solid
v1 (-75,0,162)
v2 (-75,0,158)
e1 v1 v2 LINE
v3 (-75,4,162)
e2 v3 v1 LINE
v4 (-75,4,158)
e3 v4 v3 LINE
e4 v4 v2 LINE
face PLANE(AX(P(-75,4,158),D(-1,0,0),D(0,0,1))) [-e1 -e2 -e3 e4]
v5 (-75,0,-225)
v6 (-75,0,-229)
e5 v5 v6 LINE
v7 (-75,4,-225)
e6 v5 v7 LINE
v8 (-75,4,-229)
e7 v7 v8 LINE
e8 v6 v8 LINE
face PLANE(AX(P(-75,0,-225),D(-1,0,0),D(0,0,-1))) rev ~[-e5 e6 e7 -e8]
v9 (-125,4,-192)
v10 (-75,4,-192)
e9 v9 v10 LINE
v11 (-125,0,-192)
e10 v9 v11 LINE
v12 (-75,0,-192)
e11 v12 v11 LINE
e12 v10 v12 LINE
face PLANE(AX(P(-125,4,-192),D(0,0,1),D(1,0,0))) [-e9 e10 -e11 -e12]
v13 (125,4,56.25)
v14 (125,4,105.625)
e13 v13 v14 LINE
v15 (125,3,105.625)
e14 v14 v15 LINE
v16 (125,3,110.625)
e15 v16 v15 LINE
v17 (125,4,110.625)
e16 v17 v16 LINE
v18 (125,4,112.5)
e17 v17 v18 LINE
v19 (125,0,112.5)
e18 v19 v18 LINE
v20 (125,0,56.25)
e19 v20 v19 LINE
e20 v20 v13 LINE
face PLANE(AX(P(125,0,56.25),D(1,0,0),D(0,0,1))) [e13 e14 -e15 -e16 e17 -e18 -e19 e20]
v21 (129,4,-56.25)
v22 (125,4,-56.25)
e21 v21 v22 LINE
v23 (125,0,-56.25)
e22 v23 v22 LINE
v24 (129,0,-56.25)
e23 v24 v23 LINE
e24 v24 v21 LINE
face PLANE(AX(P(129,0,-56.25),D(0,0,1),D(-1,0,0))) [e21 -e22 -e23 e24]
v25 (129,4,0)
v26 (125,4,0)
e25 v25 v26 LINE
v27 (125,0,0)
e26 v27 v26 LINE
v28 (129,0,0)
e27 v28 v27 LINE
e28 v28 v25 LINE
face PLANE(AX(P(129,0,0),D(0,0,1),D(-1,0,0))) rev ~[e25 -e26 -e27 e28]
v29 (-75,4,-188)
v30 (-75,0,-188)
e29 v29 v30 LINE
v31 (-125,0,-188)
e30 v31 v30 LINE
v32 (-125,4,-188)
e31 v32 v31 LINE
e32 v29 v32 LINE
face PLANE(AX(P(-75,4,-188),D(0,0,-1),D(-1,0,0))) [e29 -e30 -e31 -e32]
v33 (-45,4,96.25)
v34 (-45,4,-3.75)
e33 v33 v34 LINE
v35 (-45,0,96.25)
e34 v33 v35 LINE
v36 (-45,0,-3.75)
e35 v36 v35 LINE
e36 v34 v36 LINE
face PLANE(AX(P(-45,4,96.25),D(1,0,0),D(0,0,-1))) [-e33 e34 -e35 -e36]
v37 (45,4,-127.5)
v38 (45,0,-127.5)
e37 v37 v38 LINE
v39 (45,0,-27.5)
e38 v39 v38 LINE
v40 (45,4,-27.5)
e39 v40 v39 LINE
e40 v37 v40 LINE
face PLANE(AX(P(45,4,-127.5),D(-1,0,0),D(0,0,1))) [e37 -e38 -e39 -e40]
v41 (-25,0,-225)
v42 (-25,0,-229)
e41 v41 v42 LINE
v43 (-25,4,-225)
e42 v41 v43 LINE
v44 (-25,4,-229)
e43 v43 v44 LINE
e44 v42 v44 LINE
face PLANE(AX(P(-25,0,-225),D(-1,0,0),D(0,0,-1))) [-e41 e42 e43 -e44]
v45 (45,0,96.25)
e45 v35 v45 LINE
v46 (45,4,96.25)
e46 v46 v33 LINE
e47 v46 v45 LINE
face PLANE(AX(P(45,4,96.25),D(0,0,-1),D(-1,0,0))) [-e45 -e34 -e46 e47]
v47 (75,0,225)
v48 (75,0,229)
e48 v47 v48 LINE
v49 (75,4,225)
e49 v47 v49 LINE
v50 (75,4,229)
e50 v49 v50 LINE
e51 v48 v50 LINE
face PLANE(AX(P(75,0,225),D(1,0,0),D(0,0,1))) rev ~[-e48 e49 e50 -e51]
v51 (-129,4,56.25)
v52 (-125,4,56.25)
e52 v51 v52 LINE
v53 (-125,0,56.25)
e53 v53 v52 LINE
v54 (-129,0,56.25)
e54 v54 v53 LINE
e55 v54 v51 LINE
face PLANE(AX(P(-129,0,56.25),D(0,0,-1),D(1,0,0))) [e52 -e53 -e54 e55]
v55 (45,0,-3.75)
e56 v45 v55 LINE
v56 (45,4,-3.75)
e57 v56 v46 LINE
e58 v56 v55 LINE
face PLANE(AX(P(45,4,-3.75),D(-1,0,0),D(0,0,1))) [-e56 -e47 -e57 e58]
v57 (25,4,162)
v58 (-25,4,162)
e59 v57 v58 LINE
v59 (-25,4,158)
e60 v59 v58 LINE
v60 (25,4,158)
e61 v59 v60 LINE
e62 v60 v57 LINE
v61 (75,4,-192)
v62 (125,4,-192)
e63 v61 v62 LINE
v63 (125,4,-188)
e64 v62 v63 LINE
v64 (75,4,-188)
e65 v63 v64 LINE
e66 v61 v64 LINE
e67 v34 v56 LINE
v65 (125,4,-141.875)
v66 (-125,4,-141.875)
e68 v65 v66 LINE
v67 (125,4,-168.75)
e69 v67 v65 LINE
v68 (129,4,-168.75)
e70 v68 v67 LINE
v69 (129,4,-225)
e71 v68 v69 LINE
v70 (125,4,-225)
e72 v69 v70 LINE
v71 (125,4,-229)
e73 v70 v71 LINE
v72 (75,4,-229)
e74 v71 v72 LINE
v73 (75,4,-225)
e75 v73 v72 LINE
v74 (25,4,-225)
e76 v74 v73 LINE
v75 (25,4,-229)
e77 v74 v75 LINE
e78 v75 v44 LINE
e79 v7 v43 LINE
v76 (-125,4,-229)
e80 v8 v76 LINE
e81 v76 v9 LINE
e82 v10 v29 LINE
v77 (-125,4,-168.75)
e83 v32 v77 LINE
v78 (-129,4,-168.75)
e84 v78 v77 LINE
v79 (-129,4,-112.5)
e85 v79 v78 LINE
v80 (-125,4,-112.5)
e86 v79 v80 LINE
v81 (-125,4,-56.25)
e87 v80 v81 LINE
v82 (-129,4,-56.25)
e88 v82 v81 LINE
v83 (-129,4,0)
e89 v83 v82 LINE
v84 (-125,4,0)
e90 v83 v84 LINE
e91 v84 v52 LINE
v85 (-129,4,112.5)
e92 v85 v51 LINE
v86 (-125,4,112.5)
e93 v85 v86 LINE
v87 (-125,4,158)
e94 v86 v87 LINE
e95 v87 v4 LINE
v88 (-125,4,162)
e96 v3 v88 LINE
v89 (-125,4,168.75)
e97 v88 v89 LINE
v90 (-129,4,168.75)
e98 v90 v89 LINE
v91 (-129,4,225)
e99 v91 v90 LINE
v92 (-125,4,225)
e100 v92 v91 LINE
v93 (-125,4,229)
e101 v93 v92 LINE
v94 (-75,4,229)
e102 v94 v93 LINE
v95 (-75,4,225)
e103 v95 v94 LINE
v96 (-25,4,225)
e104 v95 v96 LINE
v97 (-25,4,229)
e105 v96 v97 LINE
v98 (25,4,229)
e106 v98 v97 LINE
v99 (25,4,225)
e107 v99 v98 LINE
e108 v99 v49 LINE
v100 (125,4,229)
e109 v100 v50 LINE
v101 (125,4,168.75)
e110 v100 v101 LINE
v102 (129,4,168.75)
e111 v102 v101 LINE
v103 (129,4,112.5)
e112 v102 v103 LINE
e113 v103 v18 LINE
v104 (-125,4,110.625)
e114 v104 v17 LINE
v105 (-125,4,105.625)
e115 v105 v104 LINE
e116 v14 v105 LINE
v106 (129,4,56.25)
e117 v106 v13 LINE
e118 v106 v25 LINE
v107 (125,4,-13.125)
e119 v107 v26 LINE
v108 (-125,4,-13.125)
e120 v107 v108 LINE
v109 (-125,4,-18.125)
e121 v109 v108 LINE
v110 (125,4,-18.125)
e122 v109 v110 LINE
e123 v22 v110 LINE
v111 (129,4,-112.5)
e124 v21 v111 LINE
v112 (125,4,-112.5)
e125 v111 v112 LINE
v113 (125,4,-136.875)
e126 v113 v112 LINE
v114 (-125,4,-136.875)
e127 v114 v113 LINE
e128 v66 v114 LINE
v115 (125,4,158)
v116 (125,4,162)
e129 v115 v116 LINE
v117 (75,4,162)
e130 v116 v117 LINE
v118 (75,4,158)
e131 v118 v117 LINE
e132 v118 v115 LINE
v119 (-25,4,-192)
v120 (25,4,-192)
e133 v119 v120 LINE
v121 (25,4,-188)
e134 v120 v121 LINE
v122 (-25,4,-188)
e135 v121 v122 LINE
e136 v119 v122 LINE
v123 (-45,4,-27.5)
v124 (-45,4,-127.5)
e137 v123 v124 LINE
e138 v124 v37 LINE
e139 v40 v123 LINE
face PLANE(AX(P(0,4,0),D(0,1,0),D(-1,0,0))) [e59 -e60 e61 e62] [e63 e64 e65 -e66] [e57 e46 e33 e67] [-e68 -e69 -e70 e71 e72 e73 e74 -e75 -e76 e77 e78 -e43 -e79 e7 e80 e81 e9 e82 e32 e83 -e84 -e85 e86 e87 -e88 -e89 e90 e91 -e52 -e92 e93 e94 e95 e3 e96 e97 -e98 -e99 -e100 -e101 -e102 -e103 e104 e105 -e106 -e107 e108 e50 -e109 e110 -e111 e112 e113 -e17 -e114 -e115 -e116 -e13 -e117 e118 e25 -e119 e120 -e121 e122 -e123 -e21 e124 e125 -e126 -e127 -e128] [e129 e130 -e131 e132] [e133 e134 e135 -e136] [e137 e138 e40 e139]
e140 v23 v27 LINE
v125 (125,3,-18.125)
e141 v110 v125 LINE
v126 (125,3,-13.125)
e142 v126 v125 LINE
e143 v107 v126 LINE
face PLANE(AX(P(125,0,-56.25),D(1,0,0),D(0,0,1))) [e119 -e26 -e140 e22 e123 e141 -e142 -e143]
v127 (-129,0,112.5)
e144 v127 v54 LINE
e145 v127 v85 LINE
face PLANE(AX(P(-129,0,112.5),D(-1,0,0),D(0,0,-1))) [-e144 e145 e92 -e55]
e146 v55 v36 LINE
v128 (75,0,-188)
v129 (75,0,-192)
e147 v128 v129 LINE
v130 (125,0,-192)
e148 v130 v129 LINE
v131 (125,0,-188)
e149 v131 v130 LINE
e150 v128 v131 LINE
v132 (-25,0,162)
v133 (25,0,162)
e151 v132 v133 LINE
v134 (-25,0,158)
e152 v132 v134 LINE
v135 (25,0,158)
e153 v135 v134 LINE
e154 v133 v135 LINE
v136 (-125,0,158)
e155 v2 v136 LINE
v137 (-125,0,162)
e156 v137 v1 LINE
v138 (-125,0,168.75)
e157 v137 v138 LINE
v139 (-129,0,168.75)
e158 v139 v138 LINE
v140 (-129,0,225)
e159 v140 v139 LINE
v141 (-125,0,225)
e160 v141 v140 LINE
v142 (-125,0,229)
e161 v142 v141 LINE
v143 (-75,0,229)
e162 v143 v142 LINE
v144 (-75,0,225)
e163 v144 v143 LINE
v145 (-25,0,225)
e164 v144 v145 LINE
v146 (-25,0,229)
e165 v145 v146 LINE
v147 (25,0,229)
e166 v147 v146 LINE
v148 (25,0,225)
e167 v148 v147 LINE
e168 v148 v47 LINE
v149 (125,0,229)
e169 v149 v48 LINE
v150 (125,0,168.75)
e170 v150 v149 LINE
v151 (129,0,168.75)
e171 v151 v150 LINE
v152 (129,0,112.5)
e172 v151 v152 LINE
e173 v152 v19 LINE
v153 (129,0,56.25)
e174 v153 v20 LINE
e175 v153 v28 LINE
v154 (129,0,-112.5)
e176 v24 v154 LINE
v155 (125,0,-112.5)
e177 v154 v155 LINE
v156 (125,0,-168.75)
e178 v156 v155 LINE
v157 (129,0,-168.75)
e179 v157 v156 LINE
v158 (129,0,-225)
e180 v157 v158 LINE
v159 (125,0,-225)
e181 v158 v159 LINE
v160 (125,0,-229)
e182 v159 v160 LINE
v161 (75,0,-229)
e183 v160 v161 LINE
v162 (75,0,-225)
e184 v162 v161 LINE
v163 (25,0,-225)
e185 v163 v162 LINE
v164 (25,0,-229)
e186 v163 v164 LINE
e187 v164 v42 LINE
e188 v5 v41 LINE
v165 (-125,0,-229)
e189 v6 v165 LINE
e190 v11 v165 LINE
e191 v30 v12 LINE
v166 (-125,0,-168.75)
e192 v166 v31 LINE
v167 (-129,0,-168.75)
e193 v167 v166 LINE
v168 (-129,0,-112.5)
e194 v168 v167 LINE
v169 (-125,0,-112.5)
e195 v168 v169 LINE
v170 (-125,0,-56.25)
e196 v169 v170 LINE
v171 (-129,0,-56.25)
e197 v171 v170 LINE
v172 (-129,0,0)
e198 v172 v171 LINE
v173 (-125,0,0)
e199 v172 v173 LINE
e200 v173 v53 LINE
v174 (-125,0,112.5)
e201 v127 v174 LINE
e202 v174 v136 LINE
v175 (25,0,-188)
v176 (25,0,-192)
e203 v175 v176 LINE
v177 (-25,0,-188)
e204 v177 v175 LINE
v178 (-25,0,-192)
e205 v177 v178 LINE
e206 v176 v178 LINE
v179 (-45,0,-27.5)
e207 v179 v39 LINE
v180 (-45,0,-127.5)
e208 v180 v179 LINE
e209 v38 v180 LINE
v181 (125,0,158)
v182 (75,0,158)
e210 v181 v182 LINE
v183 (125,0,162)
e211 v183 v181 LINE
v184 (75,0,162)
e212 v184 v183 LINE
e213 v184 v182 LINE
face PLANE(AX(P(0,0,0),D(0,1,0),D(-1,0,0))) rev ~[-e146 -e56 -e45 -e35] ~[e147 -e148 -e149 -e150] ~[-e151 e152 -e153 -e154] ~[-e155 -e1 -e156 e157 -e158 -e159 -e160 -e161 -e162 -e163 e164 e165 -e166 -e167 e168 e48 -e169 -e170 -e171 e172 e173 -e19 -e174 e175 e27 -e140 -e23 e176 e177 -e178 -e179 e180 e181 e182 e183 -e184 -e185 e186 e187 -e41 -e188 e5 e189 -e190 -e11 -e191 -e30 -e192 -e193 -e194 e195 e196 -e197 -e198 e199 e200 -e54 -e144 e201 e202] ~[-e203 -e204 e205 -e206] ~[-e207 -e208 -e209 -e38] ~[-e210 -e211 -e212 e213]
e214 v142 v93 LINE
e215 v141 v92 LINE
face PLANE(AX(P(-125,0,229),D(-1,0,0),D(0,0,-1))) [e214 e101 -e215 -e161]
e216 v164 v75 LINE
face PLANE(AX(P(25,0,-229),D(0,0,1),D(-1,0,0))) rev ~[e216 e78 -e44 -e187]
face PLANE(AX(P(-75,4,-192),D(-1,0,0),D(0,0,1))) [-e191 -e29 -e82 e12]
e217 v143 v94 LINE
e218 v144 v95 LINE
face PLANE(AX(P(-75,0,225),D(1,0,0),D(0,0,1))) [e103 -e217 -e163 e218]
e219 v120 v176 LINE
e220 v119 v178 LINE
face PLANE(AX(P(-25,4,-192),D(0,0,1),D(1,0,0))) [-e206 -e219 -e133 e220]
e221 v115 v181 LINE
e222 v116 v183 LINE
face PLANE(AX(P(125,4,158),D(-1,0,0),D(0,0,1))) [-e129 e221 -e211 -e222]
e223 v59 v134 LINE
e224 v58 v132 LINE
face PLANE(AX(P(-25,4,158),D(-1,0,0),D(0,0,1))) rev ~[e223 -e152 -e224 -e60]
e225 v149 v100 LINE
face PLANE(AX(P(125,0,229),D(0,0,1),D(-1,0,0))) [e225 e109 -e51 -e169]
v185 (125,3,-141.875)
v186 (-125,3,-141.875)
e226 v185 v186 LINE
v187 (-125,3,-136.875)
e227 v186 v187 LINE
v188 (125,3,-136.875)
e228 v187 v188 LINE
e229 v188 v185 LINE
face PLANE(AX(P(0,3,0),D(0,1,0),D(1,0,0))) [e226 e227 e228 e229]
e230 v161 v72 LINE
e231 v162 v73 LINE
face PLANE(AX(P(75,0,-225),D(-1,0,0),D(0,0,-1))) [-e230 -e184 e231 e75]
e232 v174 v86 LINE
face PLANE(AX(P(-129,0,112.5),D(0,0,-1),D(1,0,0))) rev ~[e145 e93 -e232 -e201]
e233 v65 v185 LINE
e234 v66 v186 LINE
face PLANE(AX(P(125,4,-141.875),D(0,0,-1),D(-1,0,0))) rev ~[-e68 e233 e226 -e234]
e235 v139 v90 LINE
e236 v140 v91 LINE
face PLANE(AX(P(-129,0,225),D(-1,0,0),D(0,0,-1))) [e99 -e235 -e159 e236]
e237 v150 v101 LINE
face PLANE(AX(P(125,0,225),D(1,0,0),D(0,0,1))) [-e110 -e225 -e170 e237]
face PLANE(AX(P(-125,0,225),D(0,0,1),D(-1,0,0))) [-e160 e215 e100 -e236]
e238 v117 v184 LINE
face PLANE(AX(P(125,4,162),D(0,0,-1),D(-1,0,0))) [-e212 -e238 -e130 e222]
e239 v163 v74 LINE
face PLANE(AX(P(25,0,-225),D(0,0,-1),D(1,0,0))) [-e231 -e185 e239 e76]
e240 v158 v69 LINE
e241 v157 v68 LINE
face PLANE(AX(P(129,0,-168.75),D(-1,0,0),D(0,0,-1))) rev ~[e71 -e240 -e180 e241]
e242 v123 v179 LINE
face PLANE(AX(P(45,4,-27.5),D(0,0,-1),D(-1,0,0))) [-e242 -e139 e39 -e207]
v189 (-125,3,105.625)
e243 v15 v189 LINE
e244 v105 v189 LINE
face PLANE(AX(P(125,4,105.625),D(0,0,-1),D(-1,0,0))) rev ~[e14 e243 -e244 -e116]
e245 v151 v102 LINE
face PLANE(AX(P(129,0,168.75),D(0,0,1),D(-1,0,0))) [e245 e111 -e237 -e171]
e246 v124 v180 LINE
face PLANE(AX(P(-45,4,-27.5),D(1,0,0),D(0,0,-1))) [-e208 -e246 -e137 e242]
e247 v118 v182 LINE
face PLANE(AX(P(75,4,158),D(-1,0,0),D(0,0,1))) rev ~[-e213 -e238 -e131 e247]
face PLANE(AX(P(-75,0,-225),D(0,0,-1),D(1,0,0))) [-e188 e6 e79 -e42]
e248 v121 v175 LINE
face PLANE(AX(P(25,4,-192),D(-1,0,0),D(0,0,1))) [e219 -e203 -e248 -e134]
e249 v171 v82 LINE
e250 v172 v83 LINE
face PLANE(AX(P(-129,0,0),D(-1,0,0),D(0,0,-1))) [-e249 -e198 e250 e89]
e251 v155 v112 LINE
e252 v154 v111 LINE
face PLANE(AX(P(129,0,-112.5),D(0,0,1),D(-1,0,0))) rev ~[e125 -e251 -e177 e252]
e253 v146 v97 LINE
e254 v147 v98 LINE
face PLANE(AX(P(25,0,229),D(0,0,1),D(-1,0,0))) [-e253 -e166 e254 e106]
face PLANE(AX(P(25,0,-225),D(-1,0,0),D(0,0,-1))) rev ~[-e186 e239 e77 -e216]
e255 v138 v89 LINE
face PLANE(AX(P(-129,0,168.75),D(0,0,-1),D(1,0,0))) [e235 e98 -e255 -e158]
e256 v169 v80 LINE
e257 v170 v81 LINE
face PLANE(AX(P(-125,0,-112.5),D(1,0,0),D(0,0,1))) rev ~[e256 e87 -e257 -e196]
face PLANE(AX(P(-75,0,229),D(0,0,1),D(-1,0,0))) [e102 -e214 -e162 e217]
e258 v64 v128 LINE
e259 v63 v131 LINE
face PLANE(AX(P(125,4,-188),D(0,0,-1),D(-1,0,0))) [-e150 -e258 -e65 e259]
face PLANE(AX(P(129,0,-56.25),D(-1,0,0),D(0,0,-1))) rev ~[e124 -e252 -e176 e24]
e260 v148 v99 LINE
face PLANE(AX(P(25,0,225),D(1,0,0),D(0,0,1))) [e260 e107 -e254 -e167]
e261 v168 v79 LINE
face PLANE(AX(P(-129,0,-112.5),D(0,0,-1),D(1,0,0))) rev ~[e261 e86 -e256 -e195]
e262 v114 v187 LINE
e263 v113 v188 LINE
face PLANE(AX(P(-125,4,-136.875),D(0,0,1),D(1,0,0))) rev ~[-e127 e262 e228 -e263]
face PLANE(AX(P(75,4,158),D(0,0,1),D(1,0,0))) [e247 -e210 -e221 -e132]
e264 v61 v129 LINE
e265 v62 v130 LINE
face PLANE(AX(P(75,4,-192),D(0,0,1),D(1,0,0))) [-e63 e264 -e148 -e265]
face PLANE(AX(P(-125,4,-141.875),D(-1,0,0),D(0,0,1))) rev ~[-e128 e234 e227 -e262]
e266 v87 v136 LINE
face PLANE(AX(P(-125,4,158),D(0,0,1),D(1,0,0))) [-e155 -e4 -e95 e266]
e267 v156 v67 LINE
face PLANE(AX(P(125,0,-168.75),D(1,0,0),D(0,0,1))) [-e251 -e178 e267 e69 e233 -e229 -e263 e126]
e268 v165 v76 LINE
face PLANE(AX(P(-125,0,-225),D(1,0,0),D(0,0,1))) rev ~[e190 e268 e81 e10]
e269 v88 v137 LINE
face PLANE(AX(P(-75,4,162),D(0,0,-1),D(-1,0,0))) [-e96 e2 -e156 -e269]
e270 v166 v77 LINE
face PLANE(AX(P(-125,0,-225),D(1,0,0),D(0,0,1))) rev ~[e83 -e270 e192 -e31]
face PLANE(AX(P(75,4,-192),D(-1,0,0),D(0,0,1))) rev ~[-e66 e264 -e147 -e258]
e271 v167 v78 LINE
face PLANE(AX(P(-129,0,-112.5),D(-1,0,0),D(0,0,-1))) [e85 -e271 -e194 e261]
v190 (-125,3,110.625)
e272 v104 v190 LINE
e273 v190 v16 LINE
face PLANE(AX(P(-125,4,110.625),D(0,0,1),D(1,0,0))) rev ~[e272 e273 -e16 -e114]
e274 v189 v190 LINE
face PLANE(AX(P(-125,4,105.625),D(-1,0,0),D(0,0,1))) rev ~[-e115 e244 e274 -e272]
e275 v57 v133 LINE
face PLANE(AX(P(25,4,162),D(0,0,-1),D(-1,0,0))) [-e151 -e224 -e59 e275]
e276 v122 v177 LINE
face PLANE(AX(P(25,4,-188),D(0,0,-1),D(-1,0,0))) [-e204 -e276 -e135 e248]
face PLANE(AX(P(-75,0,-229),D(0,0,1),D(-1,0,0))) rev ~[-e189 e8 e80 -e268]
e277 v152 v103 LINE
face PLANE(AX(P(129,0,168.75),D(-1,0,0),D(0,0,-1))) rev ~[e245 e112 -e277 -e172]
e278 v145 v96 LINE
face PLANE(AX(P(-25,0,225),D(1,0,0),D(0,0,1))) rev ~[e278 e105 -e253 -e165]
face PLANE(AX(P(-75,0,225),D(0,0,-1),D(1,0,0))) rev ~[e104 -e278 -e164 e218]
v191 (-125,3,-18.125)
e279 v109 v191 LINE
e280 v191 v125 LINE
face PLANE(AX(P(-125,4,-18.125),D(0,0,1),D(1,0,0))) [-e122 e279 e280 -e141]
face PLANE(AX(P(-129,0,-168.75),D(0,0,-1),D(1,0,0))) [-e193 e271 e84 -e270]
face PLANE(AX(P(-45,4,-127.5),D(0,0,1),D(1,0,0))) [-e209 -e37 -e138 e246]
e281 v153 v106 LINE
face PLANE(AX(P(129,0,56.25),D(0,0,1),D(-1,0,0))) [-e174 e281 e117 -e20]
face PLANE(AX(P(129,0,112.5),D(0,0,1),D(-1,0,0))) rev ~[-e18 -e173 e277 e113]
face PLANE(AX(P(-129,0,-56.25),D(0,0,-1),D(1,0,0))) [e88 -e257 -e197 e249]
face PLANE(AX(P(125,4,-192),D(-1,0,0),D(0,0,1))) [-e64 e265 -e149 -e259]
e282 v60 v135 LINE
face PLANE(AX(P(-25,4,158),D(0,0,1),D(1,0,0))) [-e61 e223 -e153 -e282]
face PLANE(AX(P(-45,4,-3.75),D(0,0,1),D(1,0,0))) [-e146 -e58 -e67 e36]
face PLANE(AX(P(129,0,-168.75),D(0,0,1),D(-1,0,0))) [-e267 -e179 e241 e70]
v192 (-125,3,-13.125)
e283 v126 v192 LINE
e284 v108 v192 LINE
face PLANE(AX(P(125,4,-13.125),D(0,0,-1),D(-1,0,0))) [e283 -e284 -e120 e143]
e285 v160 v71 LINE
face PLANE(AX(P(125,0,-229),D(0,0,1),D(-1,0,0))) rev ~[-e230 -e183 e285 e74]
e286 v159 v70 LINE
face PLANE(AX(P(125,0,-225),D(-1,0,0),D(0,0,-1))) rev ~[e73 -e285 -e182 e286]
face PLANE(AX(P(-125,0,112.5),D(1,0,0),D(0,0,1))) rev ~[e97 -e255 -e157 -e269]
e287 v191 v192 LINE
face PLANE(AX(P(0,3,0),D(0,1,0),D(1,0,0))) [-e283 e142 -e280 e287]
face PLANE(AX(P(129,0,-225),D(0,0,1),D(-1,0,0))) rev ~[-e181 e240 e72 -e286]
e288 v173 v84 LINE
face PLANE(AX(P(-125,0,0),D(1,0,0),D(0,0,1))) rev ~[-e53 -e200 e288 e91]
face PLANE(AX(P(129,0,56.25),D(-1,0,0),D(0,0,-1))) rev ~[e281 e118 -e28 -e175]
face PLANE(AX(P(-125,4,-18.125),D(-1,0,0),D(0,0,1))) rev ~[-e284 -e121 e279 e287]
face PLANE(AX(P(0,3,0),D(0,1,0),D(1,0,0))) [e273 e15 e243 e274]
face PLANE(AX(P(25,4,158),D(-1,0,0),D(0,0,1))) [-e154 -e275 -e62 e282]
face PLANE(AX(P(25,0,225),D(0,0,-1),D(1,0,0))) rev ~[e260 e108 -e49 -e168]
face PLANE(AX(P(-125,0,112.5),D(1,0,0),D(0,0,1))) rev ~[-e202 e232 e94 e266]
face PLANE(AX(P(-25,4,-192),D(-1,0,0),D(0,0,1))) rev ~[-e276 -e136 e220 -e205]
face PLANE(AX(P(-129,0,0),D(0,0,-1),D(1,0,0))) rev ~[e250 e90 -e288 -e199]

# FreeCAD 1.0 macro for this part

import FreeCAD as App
import Part
import Sketcher
from FreeCAD import Vector


def add_polygon(sketch, points):
    """Adds a closed chain of lines whose ends are joined by coincident constraints."""
    first, n = sketch.GeometryCount, len(points)
    for a, b in zip(points, points[1:] + points[:1]):
        sketch.addGeometry(Part.LineSegment(App.Vector(*a, 0), App.Vector(*b, 0)), False)
    for i in range(n):
        sketch.addConstraint(Sketcher.Constraint("Coincident", first + i, 2, first + (i + 1) % n, 1))

doc = App.newDocument("Part")
body = doc.addObject("PartDesign::Body", "Body")

# Sketch on XZ plane
sketch1 = body.newObject("Sketcher::SketchObject", "Sketch")
sketch1.AttachmentSupport = (doc.getObject("XZ_Plane"), [""])
sketch1.MapMode = "FlatFace"
add_polygon(sketch1, [(-75, 229), (-75, 225), (-25, 225), (-25, 229), (25, 229), (25, 225), (75, 225), (75, 229), (125, 229), (125, 168.8), (129, 168.8), (129, 112.5), (125, 112.5), (125, 56.2), (129, 56.2), (129, 0), (125, 0), (125, -56.2), (129, -56.2), (129, -112.5), (125, -112.5), (125, -168.8), (129, -168.8), (129, -225), (125, -225), (125, -229), (75, -229), (75, -225), (25, -225), (25, -229), (-25, -229), (-25, -225), (-75, -225), (-75, -229), (-125, -229), (-125, -168.8), (-129, -168.8), (-129, -112.5), (-125, -112.5), (-125, -56.2), (-129, -56.2), (-129, 0), (-125, 0), (-125, 56.2), (-129, 56.2), (-129, 112.5), (-125, 112.5), (-125, 168.8), (-129, 168.8), (-129, 225), (-125, 225), (-125, 229)])  # lines 0-51
sketch1.addConstraint(Sketcher.Constraint("Vertical", 0))
sketch1.addConstraint(Sketcher.Constraint("Horizontal", 1))
sketch1.addConstraint(Sketcher.Constraint("Vertical", 2))
sketch1.addConstraint(Sketcher.Constraint("Horizontal", 3))
sketch1.addConstraint(Sketcher.Constraint("Vertical", 4))
sketch1.addConstraint(Sketcher.Constraint("Horizontal", 5))
sketch1.addConstraint(Sketcher.Constraint("Vertical", 6))
sketch1.addConstraint(Sketcher.Constraint("Horizontal", 7))
sketch1.addConstraint(Sketcher.Constraint("Vertical", 8))
sketch1.addConstraint(Sketcher.Constraint("Horizontal", 9))
sketch1.addConstraint(Sketcher.Constraint("Vertical", 10))
sketch1.addConstraint(Sketcher.Constraint("Horizontal", 11))
sketch1.addConstraint(Sketcher.Constraint("Vertical", 12))
sketch1.addConstraint(Sketcher.Constraint("Horizontal", 13))
sketch1.addConstraint(Sketcher.Constraint("Vertical", 14))
sketch1.addConstraint(Sketcher.Constraint("Horizontal", 15))
sketch1.addConstraint(Sketcher.Constraint("Vertical", 16))
sketch1.addConstraint(Sketcher.Constraint("Horizontal", 17))
sketch1.addConstraint(Sketcher.Constraint("Vertical", 18))
sketch1.addConstraint(Sketcher.Constraint("Horizontal", 19))
sketch1.addConstraint(Sketcher.Constraint("Vertical", 20))
sketch1.addConstraint(Sketcher.Constraint("Horizontal", 21))
sketch1.addConstraint(Sketcher.Constraint("Vertical", 22))
sketch1.addConstraint(Sketcher.Constraint("Horizontal", 23))
sketch1.addConstraint(Sketcher.Constraint("Vertical", 24))
sketch1.addConstraint(Sketcher.Constraint("Horizontal", 25))
sketch1.addConstraint(Sketcher.Constraint("Vertical", 26))
sketch1.addConstraint(Sketcher.Constraint("Horizontal", 27))
sketch1.addConstraint(Sketcher.Constraint("Vertical", 28))
sketch1.addConstraint(Sketcher.Constraint("Horizontal", 29))
sketch1.addConstraint(Sketcher.Constraint("Vertical", 30))
sketch1.addConstraint(Sketcher.Constraint("Horizontal", 31))
sketch1.addConstraint(Sketcher.Constraint("Vertical", 32))
sketch1.addConstraint(Sketcher.Constraint("Horizontal", 33))
sketch1.addConstraint(Sketcher.Constraint("Vertical", 34))
sketch1.addConstraint(Sketcher.Constraint("Horizontal", 35))
sketch1.addConstraint(Sketcher.Constraint("Vertical", 36))
sketch1.addConstraint(Sketcher.Constraint("Horizontal", 37))
sketch1.addConstraint(Sketcher.Constraint("Vertical", 38))
sketch1.addConstraint(Sketcher.Constraint("Horizontal", 39))
sketch1.addConstraint(Sketcher.Constraint("Vertical", 40))
sketch1.addConstraint(Sketcher.Constraint("Horizontal", 41))
sketch1.addConstraint(Sketcher.Constraint("Vertical", 42))
sketch1.addConstraint(Sketcher.Constraint("Horizontal", 43))
sketch1.addConstraint(Sketcher.Constraint("Vertical", 44))
sketch1.addConstraint(Sketcher.Constraint("Horizontal", 45))
sketch1.addConstraint(Sketcher.Constraint("Vertical", 46))
sketch1.addConstraint(Sketcher.Constraint("Horizontal", 47))
sketch1.addConstraint(Sketcher.Constraint("Vertical", 48))
sketch1.addConstraint(Sketcher.Constraint("Horizontal", 49))
sketch1.addConstraint(Sketcher.Constraint("Vertical", 50))
sketch1.addConstraint(Sketcher.Constraint("Horizontal", 51))
sketch1.addConstraint(Sketcher.Constraint("Symmetric", 0, 2, 26, 2, -1, 1))
sketch1.addConstraint(Sketcher.Constraint("Symmetric", 2, 2, 28, 2, -1, 1))
sketch1.addConstraint(Sketcher.Constraint("Symmetric", 4, 2, 30, 2, -1, 1))
sketch1.addConstraint(Sketcher.Constraint("Symmetric", 6, 2, 32, 2, -1, 1))
sketch1.addConstraint(Sketcher.Constraint("Symmetric", 8, 2, 34, 2, -1, 1))
sketch1.addConstraint(Sketcher.Constraint("Symmetric", 10, 2, 36, 2, -1, 1))
sketch1.addConstraint(Sketcher.Constraint("Symmetric", 12, 2, 38, 2, -1, 1))
sketch1.addConstraint(Sketcher.Constraint("Symmetric", 14, 2, 40, 2, -1, 1))
sketch1.addConstraint(Sketcher.Constraint("Symmetric", 16, 2, 42, 2, -1, 1))
sketch1.addConstraint(Sketcher.Constraint("Symmetric", 18, 2, 44, 2, -1, 1))
sketch1.addConstraint(Sketcher.Constraint("Symmetric", 20, 2, 46, 2, -1, 1))
sketch1.addConstraint(Sketcher.Constraint("Symmetric", 22, 2, 48, 2, -1, 1))
sketch1.addConstraint(Sketcher.Constraint("Symmetric", 24, 2, 50, 2, -1, 1))
sketch1.addConstraint(Sketcher.Constraint("Symmetric", 1, 2, 4, 2, -2))
sketch1.addConstraint(Sketcher.Constraint("Symmetric", 25, 2, 32, 2, -2))
sketch1.addConstraint(Sketcher.Constraint("Symmetric", 20, 2, 34, 2, -2))
sketch1.addConstraint(Sketcher.Constraint("Symmetric", 18, 2, 36, 2, -2))
sketch1.addConstraint(Sketcher.Constraint("Symmetric", 16, 2, 38, 2, -2))
sketch1.addConstraint(Sketcher.Constraint("PointOnObject", 14, 2, -1))
sketch1.addConstraint(Sketcher.Constraint("Horizontal", 3, 2, 6, 2))
sketch1.addConstraint(Sketcher.Constraint("Horizontal", 23, 2, 26, 2))
sketch1.addConstraint(Sketcher.Constraint("Vertical", 8, 2, 11, 2))
sketch1.addConstraint(Sketcher.Constraint("Vertical", 10, 2, 13, 2))
sketch1.addConstraint(Sketcher.Constraint("Vertical", 18, 2, 21, 2))
sketch1.addConstraint(Sketcher.Constraint("Vertical", 20, 2, 23, 2))
sketch1.addConstraint(Sketcher.Constraint("Equal", 1, 3))
sketch1.addConstraint(Sketcher.Constraint("Equal", 5, 7))
sketch1.addConstraint(Sketcher.Constraint("Equal", 49, 0))
sketch1.addConstraint(Sketcher.Constraint("Equal", 10, 12))
sketch1.addConstraint(Sketcher.Constraint("Equal", 12, 14))
sketch1.addConstraint(Sketcher.Constraint("Equal", 20, 22))
sketch1.addConstraint(Sketcher.Constraint("DistanceX", 1, 1, 1, 2, 50.0))
sketch1.addConstraint(Sketcher.Constraint("DistanceX", 9, 1, 9, 2, 4.0))
sketch1.addConstraint(Sketcher.Constraint("DistanceY", 10, 2, 10, 1, 56.25))
pad1 = body.newObject("PartDesign::Pad", "Pad")
pad1.Profile = sketch1
pad1.Length = 4
pad1.Reversed = True

# Sketch on XZ plane
sketch2 = body.newObject("Sketcher::SketchObject", "Sketch001")
sketch2.AttachmentSupport = (doc.getObject("XZ_Plane"), [""])
sketch2.MapMode = "FlatFace"
sketch2.AttachmentOffset = App.Placement(Vector(0, 0, -4), App.Rotation())
add_polygon(sketch2, [(45, -128), (-45, -128), (-45, -28), (45, -28)])  # lines 0-3
add_polygon(sketch2, [(-45, 96), (45, 96), (45, -4), (-45, -4)])  # lines 4-7
sketch2.addConstraint(Sketcher.Constraint("Horizontal", 0))
sketch2.addConstraint(Sketcher.Constraint("Vertical", 1))
sketch2.addConstraint(Sketcher.Constraint("Horizontal", 2))
sketch2.addConstraint(Sketcher.Constraint("Vertical", 3))
sketch2.addConstraint(Sketcher.Constraint("Horizontal", 4))
sketch2.addConstraint(Sketcher.Constraint("Vertical", 5))
sketch2.addConstraint(Sketcher.Constraint("Horizontal", 6))
sketch2.addConstraint(Sketcher.Constraint("Vertical", 7))
sketch2.addConstraint(Sketcher.Constraint("Vertical", 3, 2, 4, 2))
sketch2.addConstraint(Sketcher.Constraint("Vertical", 1, 2, 6, 2))
sketch2.addConstraint(Sketcher.Constraint("Equal", 3, 5))
sketch2.addConstraint(Sketcher.Constraint("DistanceX", 0, 2, 0, 1, 90.0))
sketch2.addConstraint(Sketcher.Constraint("DistanceY", 1, 1, 1, 2, 100.0))
sketch2.addConstraint(Sketcher.Constraint("DistanceX", 0, 2, -1, 1, 45.0))
sketch2.addConstraint(Sketcher.Constraint("DistanceY", 0, 2, -1, 1, 127.5))
sketch2.addConstraint(Sketcher.Constraint("DistanceY", -1, 1, 4, 2, 96.25))
pocket1 = body.newObject("PartDesign::Pocket", "Pocket")
pocket1.Profile = sketch2
pocket1.Type = "UpToFirst"
pocket1.Reversed = True

# Sketch on XZ plane
sketch3 = body.newObject("Sketcher::SketchObject", "Sketch002")
sketch3.AttachmentSupport = (doc.getObject("XZ_Plane"), [""])
sketch3.MapMode = "FlatFace"
sketch3.AttachmentOffset = App.Placement(Vector(0, 0, -4), App.Rotation())
add_polygon(sketch3, [(125, -18), (-125, -18), (-125, -13), (125, -13)])  # lines 0-3
sketch3.addConstraint(Sketcher.Constraint("Horizontal", 0))
sketch3.addConstraint(Sketcher.Constraint("Vertical", 1))
sketch3.addConstraint(Sketcher.Constraint("Horizontal", 2))
sketch3.addConstraint(Sketcher.Constraint("Vertical", 3))
sketch3.addConstraint(Sketcher.Constraint("DistanceY", 1, 1, 1, 2, 5.0))
sketch3.addConstraint(Sketcher.Constraint("DistanceX", 0, 2, 0, 1, 250.0))
sketch3.addConstraint(Sketcher.Constraint("DistanceX", 0, 2, -1, 1, 125.0))
sketch3.addConstraint(Sketcher.Constraint("DistanceY", 0, 2, -1, 1, 18.125))
pocket2 = body.newObject("PartDesign::Pocket", "Pocket001")
pocket2.Profile = sketch3
pocket2.Length = 1
pocket2.Reversed = True

# Sketch on XZ plane
sketch4 = body.newObject("Sketcher::SketchObject", "Sketch003")
sketch4.AttachmentSupport = (doc.getObject("XZ_Plane"), [""])
sketch4.MapMode = "FlatFace"
sketch4.AttachmentOffset = App.Placement(Vector(0, 0, -4), App.Rotation())
add_polygon(sketch4, [(-125, 106), (-125, 111), (125, 111), (125, 106)])  # lines 0-3
add_polygon(sketch4, [(-125, -137), (125, -137), (125, -142), (-125, -142)])  # lines 4-7
sketch4.addConstraint(Sketcher.Constraint("Vertical", 0))
sketch4.addConstraint(Sketcher.Constraint("Horizontal", 1))
sketch4.addConstraint(Sketcher.Constraint("Vertical", 2))
sketch4.addConstraint(Sketcher.Constraint("Horizontal", 3))
sketch4.addConstraint(Sketcher.Constraint("Horizontal", 4))
sketch4.addConstraint(Sketcher.Constraint("Vertical", 5))
sketch4.addConstraint(Sketcher.Constraint("Horizontal", 6))
sketch4.addConstraint(Sketcher.Constraint("Vertical", 7))
sketch4.addConstraint(Sketcher.Constraint("Vertical", 2, 2, 4, 2))
sketch4.addConstraint(Sketcher.Constraint("Vertical", 3, 2, 6, 2))
sketch4.addConstraint(Sketcher.Constraint("Equal", 2, 5))
sketch4.addConstraint(Sketcher.Constraint("DistanceY", 0, 1, 0, 2, 5.0))
sketch4.addConstraint(Sketcher.Constraint("DistanceX", 1, 1, 1, 2, 250.0))
sketch4.addConstraint(Sketcher.Constraint("DistanceX", 0, 2, -1, 1, 125.0))
sketch4.addConstraint(Sketcher.Constraint("DistanceY", 4, 2, 2, 2, 242.5))
sketch4.addConstraint(Sketcher.Constraint("DistanceY", -1, 1, 0, 2, 110.625))
pocket3 = body.newObject("PartDesign::Pocket", "Pocket002")
pocket3.Profile = sketch4
pocket3.Length = 1
pocket3.Reversed = True

# Sketch on XZ plane
sketch5 = body.newObject("Sketcher::SketchObject", "Sketch004")
sketch5.AttachmentSupport = (doc.getObject("XZ_Plane"), [""])
sketch5.MapMode = "FlatFace"
sketch5.AttachmentOffset = App.Placement(Vector(0, 0, -4), App.Rotation())
add_polygon(sketch5, [(-75, 158), (-125, 158), (-125, 162), (-75, 162)])  # lines 0-3
add_polygon(sketch5, [(25, 158), (-25, 158), (-25, 162), (25, 162)])  # lines 4-7
add_polygon(sketch5, [(125, 158), (75, 158), (75, 162), (125, 162)])  # lines 8-11
add_polygon(sketch5, [(-25, -192), (-25, -188), (25, -188), (25, -192)])  # lines 12-15
add_polygon(sketch5, [(-125, -188), (-75, -188), (-75, -192), (-125, -192)])  # lines 16-19
add_polygon(sketch5, [(75, -192), (75, -188), (125, -188), (125, -192)])  # lines 20-23
sketch5.addConstraint(Sketcher.Constraint("Horizontal", 0))
sketch5.addConstraint(Sketcher.Constraint("Vertical", 1))
sketch5.addConstraint(Sketcher.Constraint("Horizontal", 2))
sketch5.addConstraint(Sketcher.Constraint("Vertical", 3))
sketch5.addConstraint(Sketcher.Constraint("Horizontal", 4))
sketch5.addConstraint(Sketcher.Constraint("Vertical", 5))
sketch5.addConstraint(Sketcher.Constraint("Horizontal", 6))
sketch5.addConstraint(Sketcher.Constraint("Vertical", 7))
sketch5.addConstraint(Sketcher.Constraint("Horizontal", 8))
sketch5.addConstraint(Sketcher.Constraint("Vertical", 9))
sketch5.addConstraint(Sketcher.Constraint("Horizontal", 10))
sketch5.addConstraint(Sketcher.Constraint("Vertical", 11))
sketch5.addConstraint(Sketcher.Constraint("Vertical", 12))
sketch5.addConstraint(Sketcher.Constraint("Horizontal", 13))
sketch5.addConstraint(Sketcher.Constraint("Vertical", 14))
sketch5.addConstraint(Sketcher.Constraint("Horizontal", 15))
sketch5.addConstraint(Sketcher.Constraint("Horizontal", 16))
sketch5.addConstraint(Sketcher.Constraint("Vertical", 17))
sketch5.addConstraint(Sketcher.Constraint("Horizontal", 18))
sketch5.addConstraint(Sketcher.Constraint("Vertical", 19))
sketch5.addConstraint(Sketcher.Constraint("Vertical", 20))
sketch5.addConstraint(Sketcher.Constraint("Horizontal", 21))
sketch5.addConstraint(Sketcher.Constraint("Vertical", 22))
sketch5.addConstraint(Sketcher.Constraint("Horizontal", 23))
sketch5.addConstraint(Sketcher.Constraint("Symmetric", 3, 2, 8, 2, -2))
sketch5.addConstraint(Sketcher.Constraint("Symmetric", 1, 2, 10, 2, -2))
sketch5.addConstraint(Sketcher.Constraint("Symmetric", 16, 2, 20, 2, -2))
sketch5.addConstraint(Sketcher.Constraint("Symmetric", 18, 2, 22, 2, -2))
sketch5.addConstraint(Sketcher.Constraint("Horizontal", 3, 2, 4, 2))
sketch5.addConstraint(Sketcher.Constraint("Horizontal", 2, 2, 5, 2))
sketch5.addConstraint(Sketcher.Constraint("Horizontal", 13, 2, 16, 2))
sketch5.addConstraint(Sketcher.Constraint("Horizontal", 15, 2, 17, 2))
sketch5.addConstraint(Sketcher.Constraint("Vertical", 5, 2, 12, 2))
sketch5.addConstraint(Sketcher.Constraint("Vertical", 7, 2, 13, 2))
sketch5.addConstraint(Sketcher.Constraint("Vertical", 3, 2, 16, 2))
sketch5.addConstraint(Sketcher.Constraint("Vertical", 1, 2, 18, 2))
sketch5.addConstraint(Sketcher.Constraint("Equal", 2, 4))
sketch5.addConstraint(Sketcher.Constraint("Equal", 11, 12))
sketch5.addConstraint(Sketcher.Constraint("DistanceX", 0, 2, 0, 1, 50.0))
sketch5.addConstraint(Sketcher.Constraint("DistanceY", 1, 1, 1, 2, 4.0))
sketch5.addConstraint(Sketcher.Constraint("DistanceX", 3, 2, 4, 2, 50.0))
sketch5.addConstraint(Sketcher.Constraint("DistanceX", 7, 2, 8, 2, 50.0))
sketch5.addConstraint(Sketcher.Constraint("DistanceY", 12, 2, 5, 2, 350.0))
sketch5.addConstraint(Sketcher.Constraint("DistanceY", -1, 1, 0, 2, 158.0))
pocket4 = body.newObject("PartDesign::Pocket", "Pocket003")
pocket4.Profile = sketch5
pocket4.Length = 4
pocket4.Reversed = True

doc.recompute()
